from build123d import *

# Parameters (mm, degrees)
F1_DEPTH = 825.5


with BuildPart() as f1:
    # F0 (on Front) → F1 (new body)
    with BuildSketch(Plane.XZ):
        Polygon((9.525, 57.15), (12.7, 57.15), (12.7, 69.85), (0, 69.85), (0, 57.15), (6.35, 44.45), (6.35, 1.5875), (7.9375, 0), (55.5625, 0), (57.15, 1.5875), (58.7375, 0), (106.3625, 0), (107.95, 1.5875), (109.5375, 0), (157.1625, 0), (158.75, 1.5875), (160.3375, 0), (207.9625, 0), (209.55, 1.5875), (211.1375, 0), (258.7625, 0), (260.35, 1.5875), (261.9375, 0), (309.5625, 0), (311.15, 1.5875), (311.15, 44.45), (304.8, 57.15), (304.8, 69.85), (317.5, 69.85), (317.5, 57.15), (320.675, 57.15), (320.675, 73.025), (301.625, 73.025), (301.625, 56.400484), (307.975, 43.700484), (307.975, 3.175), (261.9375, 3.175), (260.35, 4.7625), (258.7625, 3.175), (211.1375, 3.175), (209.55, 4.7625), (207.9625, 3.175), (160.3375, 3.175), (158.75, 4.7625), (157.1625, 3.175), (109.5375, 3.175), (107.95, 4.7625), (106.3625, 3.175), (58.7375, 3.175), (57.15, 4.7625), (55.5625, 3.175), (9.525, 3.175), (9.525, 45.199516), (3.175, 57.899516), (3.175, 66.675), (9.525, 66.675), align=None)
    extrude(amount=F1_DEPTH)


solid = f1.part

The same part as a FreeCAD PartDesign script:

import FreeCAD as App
import Part
import Sketcher
Q = App.Units.Quantity


def add_polygon(sketch, points):
    """Adds a closed chain of lines whose ends are joined by coincident constraints."""
    first, n = sketch.GeometryCount, len(points)
    for a, b in zip(points, points[1:] + points[:1]):
        sketch.addGeometry(Part.LineSegment(App.Vector(*a, 0), App.Vector(*b, 0)), False)
    for i in range(n):
        sketch.addConstraint(Sketcher.Constraint("Coincident", first + i, 2, first + (i + 1) % n, 1))

doc = App.newDocument("Part")
body = doc.addObject("PartDesign::Body", "Body")

# Sketch on XZ plane
sketch1 = body.newObject("Sketcher::SketchObject", "Sketch")
sketch1.AttachmentSupport = (doc.getObject("XZ_Plane"), [""])
sketch1.MapMode = "FlatFace"
add_polygon(sketch1, [(9.5, 57.1), (12.7, 57.1), (12.7, 69.8), (0, 69.8), (0, 57.1), (6.3, 44.5), (6.3, 1.6), (7.9, 0), (55.6, 0), (57.1, 1.6), (58.7, 0), (106.4, 0), (108, 1.6), (109.5, 0), (157.2, 0), (158.8, 1.6), (160.3, 0), (208, 0), (209.6, 1.6), (211.1, 0), (258.8, 0), (260.4, 1.6), (261.9, 0), (309.6, 0), (311.1, 1.6), (311.1, 44.5), (304.8, 57.1), (304.8, 69.8), (317.5, 69.8), (317.5, 57.1), (320.7, 57.1), (320.7, 73), (301.6, 73), (301.6, 56.4), (308, 43.7), (308, 3.2), (261.9, 3.2), (260.4, 4.8), (258.8, 3.2), (211.1, 3.2), (209.6, 4.8), (208, 3.2), (160.3, 3.2), (158.8, 4.8), (157.2, 3.2), (109.5, 3.2), (108, 4.8), (106.4, 3.2), (58.7, 3.2), (57.1, 4.8), (55.6, 3.2), (9.5, 3.2), (9.5, 45.2), (3.2, 57.9), (3.2, 66.7), (9.5, 66.7)])  # lines 0-55
sketch1.addConstraint(Sketcher.Constraint("Horizontal", 0))
sketch1.addConstraint(Sketcher.Constraint("Vertical", 1))
sketch1.addConstraint(Sketcher.Constraint("Horizontal", 2))
sketch1.addConstraint(Sketcher.Constraint("Vertical", 3))
sketch1.addConstraint(Sketcher.Constraint("Vertical", 5))
sketch1.addConstraint(Sketcher.Constraint("Horizontal", 7))
sketch1.addConstraint(Sketcher.Constraint("Horizontal", 10))
sketch1.addConstraint(Sketcher.Constraint("Horizontal", 13))
sketch1.addConstraint(Sketcher.Constraint("Horizontal", 16))
sketch1.addConstraint(Sketcher.Constraint("Horizontal", 19))
sketch1.addConstraint(Sketcher.Constraint("Horizontal", 22))
sketch1.addConstraint(Sketcher.Constraint("Vertical", 24))
sketch1.addConstraint(Sketcher.Constraint("Vertical", 26))
sketch1.addConstraint(Sketcher.Constraint("Horizontal", 27))
sketch1.addConstraint(Sketcher.Constraint("Vertical", 28))
sketch1.addConstraint(Sketcher.Constraint("Horizontal", 29))
sketch1.addConstraint(Sketcher.Constraint("Vertical", 30))
sketch1.addConstraint(Sketcher.Constraint("Horizontal", 31))
sketch1.addConstraint(Sketcher.Constraint("Vertical", 32))
sketch1.addConstraint(Sketcher.Constraint("Vertical", 34))
sketch1.addConstraint(Sketcher.Constraint("Horizontal", 35))
sketch1.addConstraint(Sketcher.Constraint("Horizontal", 38))
sketch1.addConstraint(Sketcher.Constraint("Horizontal", 41))
sketch1.addConstraint(Sketcher.Constraint("Horizontal", 44))
sketch1.addConstraint(Sketcher.Constraint("Horizontal", 47))
sketch1.addConstraint(Sketcher.Constraint("Horizontal", 50))
sketch1.addConstraint(Sketcher.Constraint("Vertical", 51))
sketch1.addConstraint(Sketcher.Constraint("Vertical", 53))
sketch1.addConstraint(Sketcher.Constraint("Horizontal", 54))
sketch1.addConstraint(Sketcher.Constraint("Vertical", 55))
sketch1.addConstraint(Sketcher.Constraint("PointOnObject", 2, 2, -2))
sketch1.addConstraint(Sketcher.Constraint("PointOnObject", 6, 2, -1))
sketch1.addConstraint(Sketcher.Constraint("PointOnObject", 9, 2, -1))
sketch1.addConstraint(Sketcher.Constraint("PointOnObject", 12, 2, -1))
sketch1.addConstraint(Sketcher.Constraint("PointOnObject", 15, 2, -1))
sketch1.addConstraint(Sketcher.Constraint("PointOnObject", 18, 2, -1))
sketch1.addConstraint(Sketcher.Constraint("PointOnObject", 21, 2, -1))
sketch1.addConstraint(Sketcher.Constraint("Perpendicular", 6, 8))
sketch1.addConstraint(Sketcher.Constraint("Perpendicular", 8, 9))
sketch1.addConstraint(Sketcher.Constraint("Perpendicular", 9, 11))
sketch1.addConstraint(Sketcher.Constraint("Perpendicular", 11, 12))
sketch1.addConstraint(Sketcher.Constraint("Perpendicular", 12, 14))
sketch1.addConstraint(Sketcher.Constraint("Perpendicular", 14, 15))
sketch1.addConstraint(Sketcher.Constraint("Perpendicular", 15, 17))
sketch1.addConstraint(Sketcher.Constraint("Perpendicular", 17, 18))
sketch1.addConstraint(Sketcher.Constraint("Perpendicular", 18, 20))
sketch1.addConstraint(Sketcher.Constraint("Perpendicular", 20, 21))
sketch1.addConstraint(Sketcher.Constraint("Perpendicular", 21, 23))
sketch1.addConstraint(Sketcher.Constraint("Parallel", 4, 25))
sketch1.addConstraint(Sketcher.Constraint("Parallel", 25, 33))
sketch1.addConstraint(Sketcher.Constraint("Perpendicular", 23, 36))
sketch1.addConstraint(Sketcher.Constraint("Perpendicular", 36, 37))
sketch1.addConstraint(Sketcher.Constraint("Perpendicular", 37, 39))
sketch1.addConstraint(Sketcher.Constraint("Perpendicular", 39, 40))
sketch1.addConstraint(Sketcher.Constraint("Perpendicular", 40, 42))
sketch1.addConstraint(Sketcher.Constraint("Perpendicular", 42, 43))
sketch1.addConstraint(Sketcher.Constraint("Perpendicular", 43, 45))
sketch1.addConstraint(Sketcher.Constraint("Perpendicular", 45, 46))
sketch1.addConstraint(Sketcher.Constraint("Perpendicular", 46, 48))
sketch1.addConstraint(Sketcher.Constraint("Perpendicular", 48, 49))
sketch1.addConstraint(Sketcher.Constraint("Parallel", 33, 52))
sketch1.addConstraint(Sketcher.Constraint("Horizontal", 0, 2, 3, 2))
sketch1.addConstraint(Sketcher.Constraint("Horizontal", 5, 2, 8, 2))
sketch1.addConstraint(Sketcher.Constraint("Horizontal", 8, 2, 11, 2))
sketch1.addConstraint(Sketcher.Constraint("Horizontal", 11, 2, 14, 2))
sketch1.addConstraint(Sketcher.Constraint("Horizontal", 14, 2, 17, 2))
sketch1.addConstraint(Sketcher.Constraint("Horizontal", 17, 2, 20, 2))
sketch1.addConstraint(Sketcher.Constraint("Horizontal", 20, 2, 23, 2))
sketch1.addConstraint(Sketcher.Constraint("Horizontal", 4, 2, 24, 2))
sketch1.addConstraint(Sketcher.Constraint("Horizontal", 3, 2, 25, 2))
sketch1.addConstraint(Sketcher.Constraint("Horizontal", 2, 2, 26, 2))
sketch1.addConstraint(Sketcher.Constraint("Horizontal", 25, 2, 28, 2))
sketch1.addConstraint(Sketcher.Constraint("Horizontal", 35, 2, 37, 2))
sketch1.addConstraint(Sketcher.Constraint("Horizontal", 36, 2, 39, 2))
sketch1.addConstraint(Sketcher.Constraint("Horizontal", 38, 2, 40, 2))
sketch1.addConstraint(Sketcher.Constraint("Horizontal", 39, 2, 42, 2))
sketch1.addConstraint(Sketcher.Constraint("Horizontal", 41, 2, 43, 2))
sketch1.addConstraint(Sketcher.Constraint("Horizontal", 42, 2, 45, 2))
sketch1.addConstraint(Sketcher.Constraint("Horizontal", 44, 2, 46, 2))
sketch1.addConstraint(Sketcher.Constraint("Horizontal", 45, 2, 48, 2))
sketch1.addConstraint(Sketcher.Constraint("Horizontal", 47, 2, 49, 2))
sketch1.addConstraint(Sketcher.Constraint("Vertical", 21, 2, 35, 2))
sketch1.addConstraint(Sketcher.Constraint("Vertical", 20, 2, 36, 2))
sketch1.addConstraint(Sketcher.Constraint("Vertical", 18, 2, 38, 2))
sketch1.addConstraint(Sketcher.Constraint("Vertical", 15, 2, 41, 2))
sketch1.addConstraint(Sketcher.Constraint("Vertical", 12, 2, 44, 2))
sketch1.addConstraint(Sketcher.Constraint("Vertical", 9, 2, 47, 2))
sketch1.addConstraint(Sketcher.Constraint("Vertical", 51, 2, 54, 2))
sketch1.addConstraint(Sketcher.Constraint("Equal", 7, 10))
sketch1.addConstraint(Sketcher.Constraint("Equal", 10, 13))
sketch1.addConstraint(Sketcher.Constraint("Equal", 13, 16))
sketch1.addConstraint(Sketcher.Constraint("Equal", 16, 19))
sketch1.addConstraint(Sketcher.Constraint("Equal", 19, 22))
sketch1.addConstraint(Sketcher.Constraint("Equal", 2, 27))
sketch1.addConstraint(Sketcher.Constraint("Equal", 0, 29))
sketch1.addConstraint(Sketcher.Constraint("Equal", 35, 50))
sketch1.addConstraint(Sketcher.Constraint("Equal", 27, 1))
sketch1.addConstraint(Sketcher.Constraint("Equal", 6, 8))
sketch1.addConstraint(Sketcher.Constraint("Equal", 25, 33))
sketch1.addConstraint(Sketcher.Constraint("Equal", 33, 52))
sketch1.addConstraint(Sketcher.Constraint("DistanceX", 2, 2, 2, 1, Q("0.5 in")))
sketch1.addConstraint(Sketcher.Constraint("DistanceX", -1, 1, 25, 2, Q("12 in")))
sketch1.addConstraint(Sketcher.Constraint("DistanceY", 4, 2, 1, 2, Q("1 in")))
sketch1.addConstraint(Sketcher.Constraint("DistanceX", 31, 2, 31, 1, Q("0.75 in")))
sketch1.addConstraint(Sketcher.Constraint("DistanceX", 0, 1, 0, 2, Q("0.125 in")))
sketch1.addConstraint(Sketcher.Constraint("DistanceX", 7, 1, 7, 2, Q("1.875 in")))
sketch1.addConstraint(Sketcher.Constraint("DistanceY", 5, 2, 5, 1, Q("1.6875 in")))
sketch1.addConstraint(Sketcher.Constraint("DistanceY", 30, 1, 30, 2, Q("0.625 in")))
sketch1.addConstraint(Sketcher.Constraint("DistanceY", 55, 2, 55, 1, Q("0.375 in")))
sketch1.addConstraint(Sketcher.Constraint("DistanceY", -1, 1, 34, 2, Q("0.125 in")))
sketch1.addConstraint(Sketcher.Constraint("DistanceY", 32, 2, 32, 1, Q("16.624516 mm")))
sketch1.addConstraint(Sketcher.Constraint("DistanceY", 51, 1, 51, 2, Q("42.024516 mm")))
pad1 = body.newObject("PartDesign::Pad", "Pad")
pad1.Profile = sketch1
pad1.Length = Q("32.5 in")

doc.recompute()
